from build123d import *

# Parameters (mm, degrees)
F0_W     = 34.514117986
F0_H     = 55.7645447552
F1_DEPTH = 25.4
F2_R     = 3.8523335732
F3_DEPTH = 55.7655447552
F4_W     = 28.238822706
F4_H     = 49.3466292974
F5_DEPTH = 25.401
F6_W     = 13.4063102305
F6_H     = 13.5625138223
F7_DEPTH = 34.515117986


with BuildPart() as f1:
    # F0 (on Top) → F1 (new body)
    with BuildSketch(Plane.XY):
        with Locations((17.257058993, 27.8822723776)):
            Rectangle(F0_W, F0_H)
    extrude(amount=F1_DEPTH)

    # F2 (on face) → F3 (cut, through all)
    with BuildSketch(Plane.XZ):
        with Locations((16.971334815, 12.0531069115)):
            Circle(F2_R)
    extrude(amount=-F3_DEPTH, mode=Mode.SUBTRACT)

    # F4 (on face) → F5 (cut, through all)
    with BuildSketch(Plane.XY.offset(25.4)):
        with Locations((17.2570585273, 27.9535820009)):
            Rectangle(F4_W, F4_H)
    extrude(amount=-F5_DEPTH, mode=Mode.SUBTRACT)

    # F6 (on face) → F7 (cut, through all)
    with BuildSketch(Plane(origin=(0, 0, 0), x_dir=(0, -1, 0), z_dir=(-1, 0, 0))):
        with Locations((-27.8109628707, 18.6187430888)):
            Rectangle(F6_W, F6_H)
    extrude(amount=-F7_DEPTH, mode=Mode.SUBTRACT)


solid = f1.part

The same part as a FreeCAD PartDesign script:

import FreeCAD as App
import Part
import Sketcher
from FreeCAD import Vector
Q = App.Units.Quantity


def add_polygon(sketch, points):
    """Adds a closed chain of lines whose ends are joined by coincident constraints."""
    first, n = sketch.GeometryCount, len(points)
    for a, b in zip(points, points[1:] + points[:1]):
        sketch.addGeometry(Part.LineSegment(App.Vector(*a, 0), App.Vector(*b, 0)), False)
    for i in range(n):
        sketch.addConstraint(Sketcher.Constraint("Coincident", first + i, 2, first + (i + 1) % n, 1))

doc = App.newDocument("Part")
body = doc.addObject("PartDesign::Body", "Body")

# Sketch on XY plane
sketch1 = body.newObject("Sketcher::SketchObject", "Sketch")
sketch1.AttachmentSupport = (doc.getObject("XY_Plane"), [""])
sketch1.MapMode = "FlatFace"
add_polygon(sketch1, [(0, 55.764545), (0, 0), (34.514118, 0), (34.514118, 55.764545)])  # lines 0-3
sketch1.addConstraint(Sketcher.Constraint("Vertical", 0))
sketch1.addConstraint(Sketcher.Constraint("Horizontal", 1))
sketch1.addConstraint(Sketcher.Constraint("Vertical", 2))
sketch1.addConstraint(Sketcher.Constraint("Horizontal", 3))
sketch1.addConstraint(Sketcher.Constraint("Coincident", 0, 2, -1, 1))
sketch1.addConstraint(Sketcher.Constraint("DistanceX", 1, 1, 1, 2, 34.514118))
sketch1.addConstraint(Sketcher.Constraint("DistanceY", 0, 2, 0, 1, 55.764545))
pad1 = body.newObject("PartDesign::Pad", "Pad")
pad1.Profile = sketch1
pad1.Length = Q("1 in")

# Sketch on XZ plane
sketch2 = body.newObject("Sketcher::SketchObject", "Sketch001")
sketch2.AttachmentSupport = (doc.getObject("XZ_Plane"), [""])
sketch2.MapMode = "FlatFace"
sketch2.addGeometry(Part.Circle(Vector(16.971335, 12.053107, 0), Vector(0, 0, 1), 3.852334), False)
sketch2.addConstraint(Sketcher.Constraint("Diameter", 0, 7.704667))
sketch2.addConstraint(Sketcher.Constraint("DistanceX", -1, 1, 0, 3, 16.971335))
sketch2.addConstraint(Sketcher.Constraint("DistanceY", -1, 1, 0, 3, 12.053107))
pocket1 = body.newObject("PartDesign::Pocket", "Pocket")
pocket1.Profile = sketch2
pocket1.Type = "ThroughAll"

# Sketch on XY plane
sketch3 = body.newObject("Sketcher::SketchObject", "Sketch002")
sketch3.AttachmentSupport = (doc.getObject("XY_Plane"), [""])
sketch3.MapMode = "FlatFace"
sketch3.AttachmentOffset = App.Placement(Vector(0, 0, 1 * 25.4), App.Rotation())
add_polygon(sketch3, [(3.137647, 52.626897), (3.137647, 3.280267), (31.37647, 3.280267), (31.37647, 52.626897)])  # lines 0-3
sketch3.addConstraint(Sketcher.Constraint("Vertical", 0))
sketch3.addConstraint(Sketcher.Constraint("Horizontal", 1))
sketch3.addConstraint(Sketcher.Constraint("Vertical", 2))
sketch3.addConstraint(Sketcher.Constraint("Horizontal", 3))
sketch3.addConstraint(Sketcher.Constraint("DistanceY", 0, 2, 0, 1, 49.346629))
sketch3.addConstraint(Sketcher.Constraint("DistanceX", 1, 1, 1, 2, 28.238823))
sketch3.addConstraint(Sketcher.Constraint("DistanceX", -1, 1, 1, 2, 31.37647))
sketch3.addConstraint(Sketcher.Constraint("DistanceY", -1, 1, 0, 2, 3.280267))
pocket2 = body.newObject("PartDesign::Pocket", "Pocket001")
pocket2.Profile = sketch3
pocket2.Type = "ThroughAll"

# Sketch on YZ plane
sketch4 = body.newObject("Sketcher::SketchObject", "Sketch003")
sketch4.AttachmentSupport = (doc.getObject("YZ_Plane"), [""])
sketch4.MapMode = "FlatFace"
add_polygon(sketch4, [(34.514118, 25.4), (34.514118, 11.837486), (21.107808, 11.837486), (21.107808, 25.4)])  # lines 0-3
sketch4.addConstraint(Sketcher.Constraint("Vertical", 0))
sketch4.addConstraint(Sketcher.Constraint("Horizontal", 1))
sketch4.addConstraint(Sketcher.Constraint("Vertical", 2))
sketch4.addConstraint(Sketcher.Constraint("Horizontal", 3))
sketch4.addConstraint(Sketcher.Constraint("DistanceY", -1, 1, 2, 2, Q("1 in")))
sketch4.addConstraint(Sketcher.Constraint("DistanceX", 1, 2, 1, 1, 13.40631))
sketch4.addConstraint(Sketcher.Constraint("DistanceY", 0, 2, 0, 1, 13.562514))
sketch4.addConstraint(Sketcher.Constraint("DistanceX", -1, 1, 0, 2, 34.514118))
pocket3 = body.newObject("PartDesign::Pocket", "Pocket002")
pocket3.Profile = sketch4
pocket3.Type = "ThroughAll"
pocket3.Reversed = True

doc.recompute()
